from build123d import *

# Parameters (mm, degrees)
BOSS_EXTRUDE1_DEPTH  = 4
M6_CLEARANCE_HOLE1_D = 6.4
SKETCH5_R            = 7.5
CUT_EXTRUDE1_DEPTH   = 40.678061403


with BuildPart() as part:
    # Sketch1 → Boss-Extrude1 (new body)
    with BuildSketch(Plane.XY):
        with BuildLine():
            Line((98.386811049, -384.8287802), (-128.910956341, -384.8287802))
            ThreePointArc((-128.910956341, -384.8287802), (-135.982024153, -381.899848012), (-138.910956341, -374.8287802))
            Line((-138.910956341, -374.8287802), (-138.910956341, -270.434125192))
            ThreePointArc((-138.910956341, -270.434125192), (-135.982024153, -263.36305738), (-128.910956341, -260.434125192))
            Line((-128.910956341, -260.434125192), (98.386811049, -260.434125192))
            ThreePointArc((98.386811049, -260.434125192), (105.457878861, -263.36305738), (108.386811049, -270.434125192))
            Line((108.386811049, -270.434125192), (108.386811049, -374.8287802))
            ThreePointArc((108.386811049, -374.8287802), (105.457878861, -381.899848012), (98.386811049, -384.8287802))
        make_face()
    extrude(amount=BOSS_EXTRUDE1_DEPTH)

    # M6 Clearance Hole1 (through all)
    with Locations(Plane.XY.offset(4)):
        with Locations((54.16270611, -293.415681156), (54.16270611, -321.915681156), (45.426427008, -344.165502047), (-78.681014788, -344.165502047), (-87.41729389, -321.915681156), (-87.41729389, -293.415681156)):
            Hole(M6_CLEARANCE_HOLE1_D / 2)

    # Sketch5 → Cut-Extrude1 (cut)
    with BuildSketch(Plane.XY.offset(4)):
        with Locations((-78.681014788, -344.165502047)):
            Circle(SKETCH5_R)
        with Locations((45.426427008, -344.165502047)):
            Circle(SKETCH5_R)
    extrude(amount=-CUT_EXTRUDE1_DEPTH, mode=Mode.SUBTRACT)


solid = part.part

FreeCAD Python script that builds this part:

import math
import FreeCAD as App
import Part
import Sketcher

doc = App.newDocument("Part")
body = doc.addObject("PartDesign::Body", "Body")

# Sketch on XY plane
sketch1 = doc.addObject("Sketcher::SketchObject", "Sketch")
body.addObject(sketch1)
sketch1.AttachmentSupport = (doc.XY_Plane, [""])
sketch1.MapMode = "FlatFace"
sketch1.addGeometry(Part.LineSegment(App.Vector(-129, -385, 0), App.Vector(98, -385, 0)), False)
sketch1.addGeometry(Part.ArcOfCircle(Part.Circle(App.Vector(98, -375, 0), App.Vector(0, 0, 1), 10), math.radians(-90), math.radians(0)), False)
sketch1.addGeometry(Part.LineSegment(App.Vector(108, -375, 0), App.Vector(108, -270, 0)), False)
sketch1.addGeometry(Part.ArcOfCircle(Part.Circle(App.Vector(98, -270, 0), App.Vector(0, 0, 1), 10), math.radians(0), math.radians(90)), False)
sketch1.addGeometry(Part.LineSegment(App.Vector(98, -260, 0), App.Vector(-129, -260, 0)), False)
sketch1.addGeometry(Part.ArcOfCircle(Part.Circle(App.Vector(-129, -270, 0), App.Vector(0, 0, 1), 10), math.radians(90), math.radians(180)), False)
sketch1.addGeometry(Part.LineSegment(App.Vector(-139, -270, 0), App.Vector(-139, -375, 0)), False)
sketch1.addGeometry(Part.ArcOfCircle(Part.Circle(App.Vector(-129, -375, 0), App.Vector(0, 0, 1), 10), math.radians(180), math.radians(270)), False)
sketch1.addConstraint(Sketcher.Constraint("Tangent", 0, 2, 1, 1))
sketch1.addConstraint(Sketcher.Constraint("Tangent", 1, 2, 2, 1))
sketch1.addConstraint(Sketcher.Constraint("Tangent", 2, 2, 3, 1))
sketch1.addConstraint(Sketcher.Constraint("Tangent", 3, 2, 4, 1))
sketch1.addConstraint(Sketcher.Constraint("Tangent", 4, 2, 5, 1))
sketch1.addConstraint(Sketcher.Constraint("Tangent", 5, 2, 6, 1))
sketch1.addConstraint(Sketcher.Constraint("Tangent", 6, 2, 7, 1))
sketch1.addConstraint(Sketcher.Constraint("Tangent", 7, 2, 0, 1))
sketch1.addConstraint(Sketcher.Constraint("Horizontal", 0))
sketch1.addConstraint(Sketcher.Constraint("Vertical", 2))
sketch1.addConstraint(Sketcher.Constraint("Horizontal", 4))
sketch1.addConstraint(Sketcher.Constraint("Vertical", 6))
sketch1.addConstraint(Sketcher.Constraint("Equal", 1, 3))
sketch1.addConstraint(Sketcher.Constraint("Equal", 3, 5))
sketch1.addConstraint(Sketcher.Constraint("Equal", 5, 7))
sketch1.addConstraint(Sketcher.Constraint("Radius", 1, 10.0))
sketch1.addConstraint(Sketcher.Constraint("DistanceX", 0, 1, 0, 2, 227.297767))
sketch1.addConstraint(Sketcher.Constraint("DistanceY", 2, 1, 2, 2, 104.394655))
sketch1.addConstraint(Sketcher.Constraint("DistanceX", -1, 1, 1, 3, 98.386811))
sketch1.addConstraint(Sketcher.Constraint("DistanceY", 1, 3, -1, 1, 374.82878))
pad1 = doc.addObject("PartDesign::Pad", "Pad")
body.addObject(pad1)
pad1.Profile = sketch1
pad1.Length = 4

# Sketch on XY plane
sketch2 = doc.addObject("Sketcher::SketchObject", "Sketch001")
body.addObject(sketch2)
sketch2.AttachmentSupport = (doc.XY_Plane, [""])
sketch2.MapMode = "FlatFace"
sketch2.AttachmentOffset = App.Placement(App.Vector(0, 0, 4), App.Rotation())
sketch2.addGeometry(Part.Circle(App.Vector(54.2, -293.4, 0), App.Vector(0, 0, 1), 3.2), False)
sketch2.addGeometry(Part.Circle(App.Vector(54.2, -321.9, 0), App.Vector(0, 0, 1), 3.2), False)
sketch2.addGeometry(Part.Circle(App.Vector(45.4, -344.2, 0), App.Vector(0, 0, 1), 3.2), False)
sketch2.addGeometry(Part.Circle(App.Vector(-78.7, -344.2, 0), App.Vector(0, 0, 1), 3.2), False)
sketch2.addGeometry(Part.Circle(App.Vector(-87.4, -321.9, 0), App.Vector(0, 0, 1), 3.2), False)
sketch2.addGeometry(Part.Circle(App.Vector(-87.4, -293.4, 0), App.Vector(0, 0, 1), 3.2), False)
sketch2.addConstraint(Sketcher.Constraint("Equal", 0, 1))
sketch2.addConstraint(Sketcher.Constraint("Equal", 1, 2))
sketch2.addConstraint(Sketcher.Constraint("Equal", 2, 3))
sketch2.addConstraint(Sketcher.Constraint("Equal", 3, 4))
sketch2.addConstraint(Sketcher.Constraint("Equal", 4, 5))
sketch2.addConstraint(Sketcher.Constraint("Horizontal", 2, 3, 3, 3))
sketch2.addConstraint(Sketcher.Constraint("Horizontal", 1, 3, 4, 3))
sketch2.addConstraint(Sketcher.Constraint("Horizontal", 0, 3, 5, 3))
sketch2.addConstraint(Sketcher.Constraint("Vertical", 0, 3, 1, 3))
sketch2.addConstraint(Sketcher.Constraint("Vertical", 4, 3, 5, 3))
sketch2.addConstraint(Sketcher.Constraint("Diameter", 0, 6.4))
sketch2.addConstraint(Sketcher.Constraint("DistanceY", 1, 3, 0, 3, 28.5))
sketch2.addConstraint(Sketcher.Constraint("DistanceX", 4, 3, 1, 3, 141.58))
sketch2.addConstraint(Sketcher.Constraint("DistanceY", 0, 3, -1, 1, 293.415681))
sketch2.addConstraint(Sketcher.Constraint("DistanceX", 2, 3, 1, 3, 8.736279))
sketch2.addConstraint(Sketcher.Constraint("DistanceY", 2, 3, 1, 3, 22.249821))
sketch2.addConstraint(Sketcher.Constraint("DistanceX", 3, 3, 2, 3, 124.107442))
sketch2.addConstraint(Sketcher.Constraint("DistanceX", -1, 1, 0, 3, 54.162706))
doc.recompute()
hole = doc.addObject("PartDesign::Hole", "Hole")
body.addObject(hole)
hole.Profile = sketch2
hole.ThreadType = "None"
hole.Diameter = 6.4
hole.DepthType = "ThroughAll"

# Sketch on XY plane
sketch3 = doc.addObject("Sketcher::SketchObject", "Sketch002")
body.addObject(sketch3)
sketch3.AttachmentSupport = (doc.XY_Plane, [""])
sketch3.MapMode = "FlatFace"
sketch3.AttachmentOffset = App.Placement(App.Vector(0, 0, 4), App.Rotation())
sketch3.addGeometry(Part.Circle(App.Vector(-79, -344, 0), App.Vector(0, 0, 1), 8), False)
sketch3.addGeometry(Part.Circle(App.Vector(45, -344, 0), App.Vector(0, 0, 1), 8), False)
sketch3.addConstraint(Sketcher.Constraint("Equal", 0, 1))
sketch3.addConstraint(Sketcher.Constraint("Horizontal", 0, 3, 1, 3))
sketch3.addConstraint(Sketcher.Constraint("Diameter", 0, 15.0))
sketch3.addConstraint(Sketcher.Constraint("DistanceX", 0, 3, 1, 3, 124.107442))
sketch3.addConstraint(Sketcher.Constraint("DistanceX", 0, 3, -1, 1, 78.681015))
sketch3.addConstraint(Sketcher.Constraint("DistanceY", 0, 3, -1, 1, 344.165502))
pocket1 = doc.addObject("PartDesign::Pocket", "Pocket")
body.addObject(pocket1)
pocket1.Profile = sketch3
pocket1.Length = 40.678061

doc.recompute()
